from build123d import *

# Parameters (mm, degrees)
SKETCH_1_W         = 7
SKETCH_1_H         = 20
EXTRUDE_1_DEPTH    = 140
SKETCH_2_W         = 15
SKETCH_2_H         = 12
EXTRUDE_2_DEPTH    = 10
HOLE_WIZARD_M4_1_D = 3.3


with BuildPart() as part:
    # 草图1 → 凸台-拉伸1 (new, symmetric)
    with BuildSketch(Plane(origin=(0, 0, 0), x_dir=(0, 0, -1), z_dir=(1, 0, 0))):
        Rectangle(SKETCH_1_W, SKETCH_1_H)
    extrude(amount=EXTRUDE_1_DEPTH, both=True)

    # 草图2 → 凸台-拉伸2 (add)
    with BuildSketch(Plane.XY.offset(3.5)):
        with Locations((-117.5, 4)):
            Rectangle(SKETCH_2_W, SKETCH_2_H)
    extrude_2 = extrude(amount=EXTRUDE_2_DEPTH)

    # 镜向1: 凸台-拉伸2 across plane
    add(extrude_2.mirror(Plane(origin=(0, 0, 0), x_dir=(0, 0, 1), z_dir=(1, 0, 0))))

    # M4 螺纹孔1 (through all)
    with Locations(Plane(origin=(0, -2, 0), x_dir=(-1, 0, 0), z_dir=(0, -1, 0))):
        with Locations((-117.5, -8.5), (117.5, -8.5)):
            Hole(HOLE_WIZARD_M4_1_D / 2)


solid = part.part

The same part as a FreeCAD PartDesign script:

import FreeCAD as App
import Part
import Sketcher
from FreeCAD import Vector

doc = App.newDocument("Part")
body = doc.addObject("PartDesign::Body", "Body")

# Sketch on YZ plane
sketch1 = doc.addObject("Sketcher::SketchObject", "Sketch")
body.addObject(sketch1)
sketch1.AttachmentSupport = (doc.YZ_Plane, [""])
sketch1.MapMode = "FlatFace"
sketch1.addGeometry([
    Part.LineSegment(Vector(10, 4, 0), Vector(-10, 4, 0)),
    Part.LineSegment(Vector(-10, 4, 0), Vector(-10, -4, 0)),
    Part.LineSegment(Vector(-10, -4, 0), Vector(10, -4, 0)),
    Part.LineSegment(Vector(10, -4, 0), Vector(10, 4, 0)),
], False)
sketch1.addConstraint([
    Sketcher.Constraint("Coincident", 0, 2, 1, 1),
    Sketcher.Constraint("Coincident", 1, 2, 2, 1),
    Sketcher.Constraint("Coincident", 2, 2, 3, 1),
    Sketcher.Constraint("Coincident", 3, 2, 0, 1),
    Sketcher.Constraint("Horizontal", 0),
    Sketcher.Constraint("Vertical", 1),
    Sketcher.Constraint("Horizontal", 2),
    Sketcher.Constraint("Vertical", 3),
    Sketcher.Constraint("Symmetric", 0, 2, 2, 2, -1, 1),
    Sketcher.Constraint("DistanceX", 0, 2, 0, 1, 20.0),
    Sketcher.Constraint("DistanceY", 1, 2, 1, 1, 7.0),
])
pad1 = doc.addObject("PartDesign::Pad", "Pad")
body.addObject(pad1)
pad1.Profile = sketch1
pad1.Length = 280
pad1.Midplane = True

# Sketch on XY plane
sketch2 = doc.addObject("Sketcher::SketchObject", "Sketch001")
body.addObject(sketch2)
sketch2.AttachmentSupport = (doc.XY_Plane, [""])
sketch2.MapMode = "FlatFace"
sketch2.AttachmentOffset = App.Placement(Vector(0, 0, 3.5), App.Rotation())
sketch2.addGeometry([
    Part.LineSegment(Vector(-125, 10, 0), Vector(-125, -2, 0)),
    Part.LineSegment(Vector(-125, -2, 0), Vector(-110, -2, 0)),
    Part.LineSegment(Vector(-110, -2, 0), Vector(-110, 10, 0)),
    Part.LineSegment(Vector(-110, 10, 0), Vector(-125, 10, 0)),
], False)
sketch2.addConstraint([
    Sketcher.Constraint("Coincident", 0, 2, 1, 1),
    Sketcher.Constraint("Coincident", 1, 2, 2, 1),
    Sketcher.Constraint("Coincident", 2, 2, 3, 1),
    Sketcher.Constraint("Coincident", 3, 2, 0, 1),
    Sketcher.Constraint("Vertical", 0),
    Sketcher.Constraint("Horizontal", 1),
    Sketcher.Constraint("Vertical", 2),
    Sketcher.Constraint("Horizontal", 3),
    Sketcher.Constraint("DistanceX", 1, 1, 1, 2, 15.0),
    Sketcher.Constraint("DistanceY", 0, 2, 0, 1, 12.0),
    Sketcher.Constraint("DistanceX", 0, 2, -1, 1, 125.0),
    Sketcher.Constraint("DistanceY", 0, 2, -1, 1, 2.0),
])
pad2 = doc.addObject("PartDesign::Pad", "Pad001")
body.addObject(pad2)
pad2.Profile = sketch2
pad2.Length = 10
doc.recompute()

mirrored = doc.addObject("PartDesign::Mirrored", "Mirrored")
body.addObject(mirrored)
mirrored.Originals = [pad2]
mirrored.MirrorPlane = (doc.YZ_Plane, [""])
body.Tip = mirrored

# Sketch on XZ plane
sketch3 = doc.addObject("Sketcher::SketchObject", "Sketch002")
body.addObject(sketch3)
sketch3.AttachmentSupport = (doc.XZ_Plane, [""])
sketch3.MapMode = "FlatFace"
sketch3.AttachmentOffset = App.Placement(Vector(0, 0, 2), App.Rotation())
sketch3.addGeometry([
    Part.Circle(Vector(117.5, 8.5, 0), Vector(0, 0, 1), 1.6),
    Part.Circle(Vector(-117.5, 8.5, 0), Vector(0, 0, 1), 1.6),
], False)
sketch3.addConstraint([
    Sketcher.Constraint("Equal", 0, 1),
    Sketcher.Constraint("Symmetric", 0, 3, 1, 3, -2),
    Sketcher.Constraint("Diameter", 0, 3.3),
    Sketcher.Constraint("DistanceX", 1, 3, 0, 3, 235.0),
    Sketcher.Constraint("DistanceY", -1, 1, 0, 3, 8.5),
])
doc.recompute()
hole = doc.addObject("PartDesign::Hole", "Hole")
body.addObject(hole)
hole.Profile = sketch3
hole.ThreadType = "None"
hole.Diameter = 3.3
hole.DepthType = "ThroughAll"

doc.recompute()
